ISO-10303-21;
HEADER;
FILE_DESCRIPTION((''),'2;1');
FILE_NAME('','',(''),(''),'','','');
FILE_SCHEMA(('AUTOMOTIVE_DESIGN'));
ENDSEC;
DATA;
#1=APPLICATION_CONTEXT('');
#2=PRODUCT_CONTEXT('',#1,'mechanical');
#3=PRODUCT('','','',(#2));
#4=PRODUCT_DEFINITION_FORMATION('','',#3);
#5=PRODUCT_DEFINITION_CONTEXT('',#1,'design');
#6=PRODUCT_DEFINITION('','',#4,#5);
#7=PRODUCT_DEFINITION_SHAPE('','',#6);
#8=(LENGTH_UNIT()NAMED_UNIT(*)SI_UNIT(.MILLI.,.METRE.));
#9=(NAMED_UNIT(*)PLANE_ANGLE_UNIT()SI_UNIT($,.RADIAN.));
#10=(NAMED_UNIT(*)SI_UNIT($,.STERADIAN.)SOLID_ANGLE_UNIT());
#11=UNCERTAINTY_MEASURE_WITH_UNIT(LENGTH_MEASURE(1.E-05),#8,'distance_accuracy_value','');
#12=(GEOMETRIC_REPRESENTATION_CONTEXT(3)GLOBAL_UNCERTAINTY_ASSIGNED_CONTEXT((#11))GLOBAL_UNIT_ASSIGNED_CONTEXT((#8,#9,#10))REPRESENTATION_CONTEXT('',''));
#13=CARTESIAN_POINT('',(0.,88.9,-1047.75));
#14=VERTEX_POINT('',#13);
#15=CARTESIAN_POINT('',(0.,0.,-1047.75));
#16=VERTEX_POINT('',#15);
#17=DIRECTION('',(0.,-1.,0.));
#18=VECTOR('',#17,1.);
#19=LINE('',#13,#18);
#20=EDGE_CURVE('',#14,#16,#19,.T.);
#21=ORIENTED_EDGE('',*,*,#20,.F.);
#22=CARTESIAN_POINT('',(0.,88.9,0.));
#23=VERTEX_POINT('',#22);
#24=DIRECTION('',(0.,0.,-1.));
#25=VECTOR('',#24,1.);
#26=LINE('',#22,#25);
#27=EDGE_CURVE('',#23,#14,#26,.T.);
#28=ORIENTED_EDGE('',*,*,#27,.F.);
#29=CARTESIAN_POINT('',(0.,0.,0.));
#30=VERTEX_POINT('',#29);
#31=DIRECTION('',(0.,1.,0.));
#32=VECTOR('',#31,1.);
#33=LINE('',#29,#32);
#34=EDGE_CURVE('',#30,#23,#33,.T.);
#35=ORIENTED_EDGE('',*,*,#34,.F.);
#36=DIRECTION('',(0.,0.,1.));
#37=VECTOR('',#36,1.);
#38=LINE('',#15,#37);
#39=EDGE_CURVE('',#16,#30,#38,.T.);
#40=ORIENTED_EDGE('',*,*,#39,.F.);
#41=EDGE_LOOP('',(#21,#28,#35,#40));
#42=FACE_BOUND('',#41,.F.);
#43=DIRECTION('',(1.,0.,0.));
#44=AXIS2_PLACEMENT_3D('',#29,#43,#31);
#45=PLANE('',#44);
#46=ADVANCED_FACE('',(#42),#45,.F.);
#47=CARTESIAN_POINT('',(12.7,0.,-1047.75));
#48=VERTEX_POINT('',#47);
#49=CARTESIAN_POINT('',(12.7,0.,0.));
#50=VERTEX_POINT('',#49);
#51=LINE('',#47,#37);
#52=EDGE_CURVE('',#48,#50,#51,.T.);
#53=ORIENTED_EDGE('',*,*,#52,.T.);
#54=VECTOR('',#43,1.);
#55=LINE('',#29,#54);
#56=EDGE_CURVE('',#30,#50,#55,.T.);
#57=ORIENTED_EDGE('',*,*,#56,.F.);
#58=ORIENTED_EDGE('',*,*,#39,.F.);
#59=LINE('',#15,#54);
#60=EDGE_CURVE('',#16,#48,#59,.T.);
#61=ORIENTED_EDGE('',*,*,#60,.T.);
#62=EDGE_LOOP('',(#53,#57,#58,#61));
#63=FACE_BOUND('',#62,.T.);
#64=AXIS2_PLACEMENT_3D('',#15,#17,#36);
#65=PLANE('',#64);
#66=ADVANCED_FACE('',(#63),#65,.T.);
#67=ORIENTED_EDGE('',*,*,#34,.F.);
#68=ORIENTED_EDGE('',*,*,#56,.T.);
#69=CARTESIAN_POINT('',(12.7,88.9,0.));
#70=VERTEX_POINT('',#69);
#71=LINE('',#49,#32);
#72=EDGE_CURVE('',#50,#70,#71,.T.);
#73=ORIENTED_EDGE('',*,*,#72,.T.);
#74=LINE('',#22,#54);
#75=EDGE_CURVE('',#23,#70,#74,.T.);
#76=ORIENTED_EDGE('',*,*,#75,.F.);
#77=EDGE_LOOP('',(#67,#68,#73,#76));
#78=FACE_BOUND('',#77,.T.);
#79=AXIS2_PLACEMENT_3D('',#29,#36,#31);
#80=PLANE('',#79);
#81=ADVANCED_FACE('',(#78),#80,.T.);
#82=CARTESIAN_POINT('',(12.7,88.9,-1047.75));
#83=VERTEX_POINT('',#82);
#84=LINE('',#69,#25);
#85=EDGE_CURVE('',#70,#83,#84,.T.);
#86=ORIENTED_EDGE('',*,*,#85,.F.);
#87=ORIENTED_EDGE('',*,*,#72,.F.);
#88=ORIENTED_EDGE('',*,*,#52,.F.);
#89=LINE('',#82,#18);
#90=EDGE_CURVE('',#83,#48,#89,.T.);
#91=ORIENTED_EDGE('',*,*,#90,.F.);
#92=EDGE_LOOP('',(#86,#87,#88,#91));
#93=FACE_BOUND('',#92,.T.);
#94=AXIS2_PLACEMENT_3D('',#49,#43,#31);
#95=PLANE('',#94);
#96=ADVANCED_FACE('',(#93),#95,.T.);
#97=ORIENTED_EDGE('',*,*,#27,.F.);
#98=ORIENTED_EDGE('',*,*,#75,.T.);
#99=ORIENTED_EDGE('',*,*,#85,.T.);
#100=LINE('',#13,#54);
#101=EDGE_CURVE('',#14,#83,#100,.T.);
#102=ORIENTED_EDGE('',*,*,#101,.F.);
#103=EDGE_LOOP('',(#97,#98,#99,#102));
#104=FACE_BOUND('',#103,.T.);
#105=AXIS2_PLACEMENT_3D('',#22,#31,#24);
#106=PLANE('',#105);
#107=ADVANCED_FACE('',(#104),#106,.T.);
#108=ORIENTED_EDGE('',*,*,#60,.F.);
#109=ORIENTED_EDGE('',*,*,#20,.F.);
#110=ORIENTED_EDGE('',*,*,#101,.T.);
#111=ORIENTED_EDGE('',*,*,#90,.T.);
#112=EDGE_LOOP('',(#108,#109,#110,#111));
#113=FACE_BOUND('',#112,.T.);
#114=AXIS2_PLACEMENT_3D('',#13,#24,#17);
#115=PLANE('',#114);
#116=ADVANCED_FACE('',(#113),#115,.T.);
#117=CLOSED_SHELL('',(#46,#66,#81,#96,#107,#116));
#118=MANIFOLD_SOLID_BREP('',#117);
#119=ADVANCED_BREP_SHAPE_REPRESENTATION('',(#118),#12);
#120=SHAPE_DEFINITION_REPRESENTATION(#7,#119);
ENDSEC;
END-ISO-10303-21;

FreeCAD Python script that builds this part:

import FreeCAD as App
import Part
import Sketcher
Q = App.Units.Quantity

doc = App.newDocument("Part")
body = doc.addObject("PartDesign::Body", "Body")

sketch1 = body.newObject("Sketcher::SketchObject", "Sketch")
sketch1.AttachmentSupport = (doc.getObject("YZ_Plane"), [""])
sketch1.MapMode = "FlatFace"
sketch1.addGeometry([
    Part.LineSegment(App.Vector(88.9, 0, 0), App.Vector(0, 0, 0)),
    Part.LineSegment(App.Vector(0, 0, 0), App.Vector(0, -1047.75, 0)),
    Part.LineSegment(App.Vector(0, -1047.75, 0), App.Vector(88.9, -1047.75, 0)),
    Part.LineSegment(App.Vector(88.9, -1047.75, 0), App.Vector(88.9, 0, 0)),
], False)
sketch1.addConstraint([
    Sketcher.Constraint("Coincident", 0, 2, 1, 1),
    Sketcher.Constraint("Coincident", 1, 2, 2, 1),
    Sketcher.Constraint("Coincident", 2, 2, 3, 1),
    Sketcher.Constraint("Coincident", 3, 2, 0, 1),
    Sketcher.Constraint("Horizontal", 0),
    Sketcher.Constraint("Vertical", 1),
    Sketcher.Constraint("Horizontal", 2),
    Sketcher.Constraint("Vertical", 3),
    Sketcher.Constraint("Coincident", 0, 2, -1, 1),
    Sketcher.Constraint("DistanceX", 0, 2, 0, 1, Q("3.5 in")),
    Sketcher.Constraint("DistanceY", 1, 2, 1, 1, Q("41.25 in")),
])
pad1 = body.newObject("PartDesign::Pad", "Pad")
pad1.Profile = sketch1
pad1.Length = Q("0.5 in")

doc.recompute()
